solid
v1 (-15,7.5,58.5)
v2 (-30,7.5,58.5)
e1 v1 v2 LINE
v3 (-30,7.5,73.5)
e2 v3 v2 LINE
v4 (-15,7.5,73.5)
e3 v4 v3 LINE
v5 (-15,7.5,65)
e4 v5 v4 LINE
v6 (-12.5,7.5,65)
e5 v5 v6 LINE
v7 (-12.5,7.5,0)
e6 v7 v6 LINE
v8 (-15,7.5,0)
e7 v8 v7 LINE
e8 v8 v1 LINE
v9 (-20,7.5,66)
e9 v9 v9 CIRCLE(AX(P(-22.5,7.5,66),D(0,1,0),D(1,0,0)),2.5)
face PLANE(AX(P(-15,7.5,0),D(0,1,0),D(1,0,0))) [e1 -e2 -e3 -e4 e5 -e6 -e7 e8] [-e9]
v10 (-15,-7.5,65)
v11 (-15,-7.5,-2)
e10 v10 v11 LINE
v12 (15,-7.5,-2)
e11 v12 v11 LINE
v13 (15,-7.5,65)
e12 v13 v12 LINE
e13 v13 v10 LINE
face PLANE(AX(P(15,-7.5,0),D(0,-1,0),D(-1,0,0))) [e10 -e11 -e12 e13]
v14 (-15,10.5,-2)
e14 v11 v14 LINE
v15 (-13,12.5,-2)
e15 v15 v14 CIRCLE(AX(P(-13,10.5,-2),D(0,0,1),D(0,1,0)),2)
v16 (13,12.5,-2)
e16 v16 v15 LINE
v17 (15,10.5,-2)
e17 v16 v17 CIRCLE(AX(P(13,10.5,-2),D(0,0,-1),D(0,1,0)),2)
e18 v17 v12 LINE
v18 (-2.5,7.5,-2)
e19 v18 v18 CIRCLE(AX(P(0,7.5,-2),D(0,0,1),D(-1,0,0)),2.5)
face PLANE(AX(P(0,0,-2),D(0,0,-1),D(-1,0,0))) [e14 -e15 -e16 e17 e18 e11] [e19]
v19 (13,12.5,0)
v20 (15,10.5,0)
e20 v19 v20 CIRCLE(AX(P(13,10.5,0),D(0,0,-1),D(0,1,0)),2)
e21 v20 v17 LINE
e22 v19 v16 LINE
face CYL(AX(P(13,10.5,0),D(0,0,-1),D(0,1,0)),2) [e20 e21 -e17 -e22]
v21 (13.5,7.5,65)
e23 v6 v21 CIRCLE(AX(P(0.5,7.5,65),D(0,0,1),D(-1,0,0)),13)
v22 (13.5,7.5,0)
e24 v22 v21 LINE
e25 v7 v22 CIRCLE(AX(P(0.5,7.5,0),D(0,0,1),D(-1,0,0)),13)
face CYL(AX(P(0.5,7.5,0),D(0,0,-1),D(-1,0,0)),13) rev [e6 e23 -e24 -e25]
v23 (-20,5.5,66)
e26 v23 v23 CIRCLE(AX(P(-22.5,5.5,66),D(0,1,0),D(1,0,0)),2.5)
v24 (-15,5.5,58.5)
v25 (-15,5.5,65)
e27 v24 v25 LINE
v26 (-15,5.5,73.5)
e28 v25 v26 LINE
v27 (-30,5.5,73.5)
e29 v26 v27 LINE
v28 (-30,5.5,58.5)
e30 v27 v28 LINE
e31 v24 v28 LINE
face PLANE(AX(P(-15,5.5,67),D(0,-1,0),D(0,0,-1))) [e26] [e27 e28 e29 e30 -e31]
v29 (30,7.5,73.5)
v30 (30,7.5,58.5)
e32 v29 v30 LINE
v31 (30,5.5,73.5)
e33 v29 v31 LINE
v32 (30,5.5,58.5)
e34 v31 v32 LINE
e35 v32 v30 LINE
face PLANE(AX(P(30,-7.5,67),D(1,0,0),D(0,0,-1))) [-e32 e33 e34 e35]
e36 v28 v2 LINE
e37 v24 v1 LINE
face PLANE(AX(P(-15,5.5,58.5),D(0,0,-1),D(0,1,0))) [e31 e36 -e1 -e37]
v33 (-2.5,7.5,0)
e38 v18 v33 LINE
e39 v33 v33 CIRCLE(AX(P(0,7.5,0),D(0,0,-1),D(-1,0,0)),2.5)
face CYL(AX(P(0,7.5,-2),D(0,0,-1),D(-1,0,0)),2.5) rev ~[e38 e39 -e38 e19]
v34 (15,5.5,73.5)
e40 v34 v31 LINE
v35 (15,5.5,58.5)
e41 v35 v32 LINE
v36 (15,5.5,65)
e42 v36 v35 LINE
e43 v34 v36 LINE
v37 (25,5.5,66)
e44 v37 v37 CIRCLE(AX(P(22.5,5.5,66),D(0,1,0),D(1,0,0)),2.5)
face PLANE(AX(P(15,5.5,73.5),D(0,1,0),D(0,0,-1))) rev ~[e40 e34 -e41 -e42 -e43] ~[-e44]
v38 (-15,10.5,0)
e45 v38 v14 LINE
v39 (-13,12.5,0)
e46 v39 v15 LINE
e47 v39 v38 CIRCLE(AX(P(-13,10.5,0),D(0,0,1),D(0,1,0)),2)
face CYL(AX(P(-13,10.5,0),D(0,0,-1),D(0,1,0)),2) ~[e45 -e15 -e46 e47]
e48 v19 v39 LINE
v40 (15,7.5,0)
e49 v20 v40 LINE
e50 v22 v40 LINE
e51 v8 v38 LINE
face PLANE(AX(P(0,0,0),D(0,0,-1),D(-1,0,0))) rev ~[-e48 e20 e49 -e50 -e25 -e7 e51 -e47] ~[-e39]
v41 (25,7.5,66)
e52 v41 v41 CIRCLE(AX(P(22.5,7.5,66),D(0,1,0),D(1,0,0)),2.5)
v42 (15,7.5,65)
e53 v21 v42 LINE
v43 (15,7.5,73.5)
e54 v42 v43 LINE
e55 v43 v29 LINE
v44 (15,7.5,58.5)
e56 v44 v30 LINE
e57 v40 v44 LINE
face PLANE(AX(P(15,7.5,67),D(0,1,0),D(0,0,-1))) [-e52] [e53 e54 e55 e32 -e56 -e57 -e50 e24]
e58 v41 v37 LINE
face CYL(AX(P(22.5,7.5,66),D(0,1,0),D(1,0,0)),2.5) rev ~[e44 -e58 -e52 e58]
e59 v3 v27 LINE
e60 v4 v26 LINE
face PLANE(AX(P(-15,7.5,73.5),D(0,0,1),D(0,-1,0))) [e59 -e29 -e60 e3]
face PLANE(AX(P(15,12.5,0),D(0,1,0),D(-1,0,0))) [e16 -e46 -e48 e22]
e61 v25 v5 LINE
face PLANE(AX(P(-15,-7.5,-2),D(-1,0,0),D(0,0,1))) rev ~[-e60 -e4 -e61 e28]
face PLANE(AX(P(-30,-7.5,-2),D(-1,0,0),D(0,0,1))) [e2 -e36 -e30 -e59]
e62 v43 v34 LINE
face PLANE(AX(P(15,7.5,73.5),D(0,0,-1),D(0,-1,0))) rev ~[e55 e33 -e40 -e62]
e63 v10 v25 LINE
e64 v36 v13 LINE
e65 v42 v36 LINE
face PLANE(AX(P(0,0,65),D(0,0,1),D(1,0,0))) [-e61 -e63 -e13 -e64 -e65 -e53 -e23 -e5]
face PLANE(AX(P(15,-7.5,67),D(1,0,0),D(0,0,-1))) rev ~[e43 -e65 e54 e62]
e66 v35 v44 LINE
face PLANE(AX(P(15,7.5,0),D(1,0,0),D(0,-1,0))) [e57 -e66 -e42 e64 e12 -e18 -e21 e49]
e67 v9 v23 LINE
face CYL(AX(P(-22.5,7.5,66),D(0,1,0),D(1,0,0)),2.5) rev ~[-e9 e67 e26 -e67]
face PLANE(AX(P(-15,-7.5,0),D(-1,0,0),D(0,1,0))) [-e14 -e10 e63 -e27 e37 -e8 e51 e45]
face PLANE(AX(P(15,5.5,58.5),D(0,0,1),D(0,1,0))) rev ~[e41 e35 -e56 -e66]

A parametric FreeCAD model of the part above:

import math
import FreeCAD as App
import Part
import Sketcher

V = App.Vector
Q = App.Units.Quantity


def edges_at(feature, points):
    """Names of the edges that pass closest to the given points."""
    edges = feature.Shape.Edges
    near = lambda p: min(range(len(edges)), key=lambda i: edges[i].distToShape(Part.Vertex(*p))[0])
    return sorted({f"Edge{near(p) + 1}" for p in points})


def add_polygon(sketch, points):
    """Adds a closed chain of lines whose ends are joined by coincident constraints."""
    first, n = sketch.GeometryCount, len(points)
    for a, b in zip(points, points[1:] + points[:1]):
        sketch.addGeometry(Part.LineSegment(App.Vector(*a, 0), App.Vector(*b, 0)), False)
    for i in range(n):
        sketch.addConstraint(Sketcher.Constraint("Coincident", first + i, 2, first + (i + 1) % n, 1))

doc = App.newDocument("Part")
body = doc.addObject("PartDesign::Body", "Body")

sketch1 = doc.addObject("Sketcher::SketchObject", "Sketch")
body.addObject(sketch1)
sketch1.AttachmentSupport = (doc.XY_Plane, [""])
sketch1.MapMode = "FlatFace"
sketch1.addGeometry([
    Part.LineSegment(V(15, -7.5, 0), V(15, 7.5, 0)),
    Part.LineSegment(V(15, 7.5, 0), V(13.5, 7.5, 0)),
    Part.ArcOfCircle(Part.Circle(V(0.5, 7.5, 0), V(0, 0, 1), 13), math.radians(180), math.radians(360)),
    Part.LineSegment(V(-12.5, 7.5, 0), V(-15, 7.5, 0)),
    Part.LineSegment(V(-15, 7.5, 0), V(-15, -7.5, 0)),
    Part.LineSegment(V(-15, -7.5, 0), V(15, -7.5, 0)),
], False)
sketch1.addConstraint([
    Sketcher.Constraint("Coincident", 0, 2, 1, 1),
    Sketcher.Constraint("Coincident", 1, 2, 2, 2),
    Sketcher.Constraint("Coincident", 2, 1, 3, 1),
    Sketcher.Constraint("Coincident", 3, 2, 4, 1),
    Sketcher.Constraint("Coincident", 4, 2, 5, 1),
    Sketcher.Constraint("Coincident", 5, 2, 0, 1),
    Sketcher.Constraint("Vertical", 0),
    Sketcher.Constraint("Horizontal", 1),
    Sketcher.Constraint("Horizontal", 3),
    Sketcher.Constraint("Vertical", 4),
    Sketcher.Constraint("Horizontal", 5),
    Sketcher.Constraint("Symmetric", 0, 2, 4, 2, -1, 1),
    Sketcher.Constraint("Horizontal", 2, 3, 0, 2),
    Sketcher.Constraint("Horizontal", 1, 2, 2, 1),
    Sketcher.Constraint("Radius", 2, Q("13 mm")),
    Sketcher.Constraint("DistanceX", 5, 1, 5, 2, Q("30 mm")),
    Sketcher.Constraint("DistanceY", 0, 1, 0, 2, Q("15 mm")),
    Sketcher.Constraint("DistanceX", 1, 2, 1, 1, Q("1.5 mm")),
])
pad1 = doc.addObject("PartDesign::Pad", "Pad")
body.addObject(pad1)
pad1.Profile = sketch1
pad1.Length = 65

sketch2 = doc.addObject("Sketcher::SketchObject", "Sketch001")
body.addObject(sketch2)
sketch2.AttachmentSupport = (doc.XY_Plane, [""])
sketch2.MapMode = "FlatFace"
add_polygon(sketch2, [(-15, 12.5), (15, 12.5), (15, -7.5), (-15, -7.5)])
sketch2.addConstraint([
    Sketcher.Constraint("Horizontal", 0),
    Sketcher.Constraint("Vertical", 1),
    Sketcher.Constraint("Horizontal", 2),
    Sketcher.Constraint("Vertical", 3),
    Sketcher.Constraint("DistanceX", 0, 1, 0, 2, Q("30 mm")),
    Sketcher.Constraint("DistanceY", 1, 2, 1, 1, Q("20 mm")),
    Sketcher.Constraint("DistanceX", -1, 1, 0, 2, Q("15 mm")),
    Sketcher.Constraint("DistanceY", -1, 1, 0, 2, Q("12.5 mm")),
])
pad2 = doc.addObject("PartDesign::Pad", "Pad001")
body.addObject(pad2)
pad2.Profile = sketch2
pad2.Length = 2
pad2.Reversed = True

sketch3 = doc.addObject("Sketcher::SketchObject", "Sketch002")
body.addObject(sketch3)
sketch3.AttachmentSupport = (doc.XY_Plane, [""])
sketch3.MapMode = "FlatFace"
sketch3.AttachmentOffset = App.Placement(V(0, 0, -2), App.Rotation())
sketch3.addGeometry(Part.Circle(V(0, 7.5, 0), V(0, 0, 1), 2.5), False)
sketch3.addConstraint([
    Sketcher.Constraint("PointOnObject", 0, 3, -2),
    Sketcher.Constraint("Diameter", 0, Q("5 mm")),
    Sketcher.Constraint("DistanceY", -1, 1, 0, 3, Q("7.5 mm")),
])
pocket1 = doc.addObject("PartDesign::Pocket", "Pocket")
body.addObject(pocket1)
pocket1.Profile = sketch3
pocket1.Length = 2
pocket1.Reversed = True
doc.recompute()

fillet = doc.addObject("PartDesign::Fillet", "Fillet")
body.addObject(fillet)
fillet.Base = (pocket1, edges_at(pocket1, [(-15, 12.5, -1)]))
fillet.Radius = 2
doc.recompute()

fillet2 = doc.addObject("PartDesign::Fillet", "Fillet001")
body.addObject(fillet2)
fillet2.Base = (fillet, edges_at(fillet, [(15, 12.5, -1)]))
fillet2.Radius = 2

sketch4 = doc.addObject("Sketcher::SketchObject", "Sketch003")
body.addObject(sketch4)
sketch4.AttachmentSupport = (doc.YZ_Plane, [""])
sketch4.MapMode = "FlatFace"
sketch4.AttachmentOffset = App.Placement(V(0, 0, -15), App.Rotation())
add_polygon(sketch4, [(5.5, 58.5), (5.5, 73.5), (7.5, 73.5), (7.5, 58.5)])
sketch4.addConstraint([
    Sketcher.Constraint("Vertical", 0),
    Sketcher.Constraint("Horizontal", 1),
    Sketcher.Constraint("Vertical", 2),
    Sketcher.Constraint("Horizontal", 3),
    Sketcher.Constraint("DistanceX", 1, 1, 1, 2, Q("2 mm")),
    Sketcher.Constraint("DistanceY", 0, 1, 0, 2, Q("15 mm")),
    Sketcher.Constraint("DistanceX", -1, 1, 0, 2, Q("5.5 mm")),
    Sketcher.Constraint("DistanceY", -1, 1, 0, 2, Q("73.5 mm")),
])
pad3 = doc.addObject("PartDesign::Pad", "Pad002")
body.addObject(pad3)
pad3.Profile = sketch4
pad3.Length = 15
pad3.Reversed = True

sketch5 = doc.addObject("Sketcher::SketchObject", "Sketch004")
body.addObject(sketch5)
sketch5.AttachmentSupport = (doc.XZ_Plane, [""])
sketch5.MapMode = "FlatFace"
sketch5.AttachmentOffset = App.Placement(V(0, 0, -7.5), App.Rotation())
sketch5.addGeometry(Part.Circle(V(-22.5, 66, 0), V(0, 0, 1), 2.5), False)
sketch5.addConstraint([
    Sketcher.Constraint("Diameter", 0, Q("5 mm")),
    Sketcher.Constraint("DistanceY", -1, 1, 0, 3, Q("66 mm")),
    Sketcher.Constraint("DistanceX", 0, 3, -1, 1, Q("22.5 mm")),
])
pocket2 = doc.addObject("PartDesign::Pocket", "Pocket001")
body.addObject(pocket2)
pocket2.Profile = sketch5
pocket2.Type = "ThroughAll"
pocket2.Reversed = True

sketch6 = doc.addObject("Sketcher::SketchObject", "Sketch005")
body.addObject(sketch6)
sketch6.AttachmentSupport = (doc.YZ_Plane, [""])
sketch6.MapMode = "FlatFace"
sketch6.AttachmentOffset = App.Placement(V(0, 0, 15), App.Rotation())
add_polygon(sketch6, [(7.5, 58.5), (7.5, 73.5), (5.5, 73.5), (5.5, 58.5)])
sketch6.addConstraint([
    Sketcher.Constraint("Vertical", 0),
    Sketcher.Constraint("Horizontal", 1),
    Sketcher.Constraint("Vertical", 2),
    Sketcher.Constraint("Horizontal", 3),
    Sketcher.Constraint("DistanceX", 1, 2, 1, 1, Q("2 mm")),
    Sketcher.Constraint("DistanceY", 0, 1, 0, 2, Q("15 mm")),
    Sketcher.Constraint("DistanceX", -1, 1, 0, 2, Q("7.5 mm")),
    Sketcher.Constraint("DistanceY", -1, 1, 0, 2, Q("73.5 mm")),
])
pad4 = doc.addObject("PartDesign::Pad", "Pad003")
body.addObject(pad4)
pad4.Profile = sketch6
pad4.Length = 15

sketch7 = doc.addObject("Sketcher::SketchObject", "Sketch006")
body.addObject(sketch7)
sketch7.AttachmentSupport = (doc.XZ_Plane, [""])
sketch7.MapMode = "FlatFace"
sketch7.AttachmentOffset = App.Placement(V(0, 0, -7.5), App.Rotation())
sketch7.addGeometry(Part.Circle(V(22.5, 66, 0), V(0, 0, 1), 2.5), False)
sketch7.addConstraint([
    Sketcher.Constraint("Diameter", 0, Q("5 mm")),
    Sketcher.Constraint("DistanceY", -1, 1, 0, 3, Q("66 mm")),
    Sketcher.Constraint("DistanceX", -1, 1, 0, 3, Q("22.5 mm")),
])
pocket3 = doc.addObject("PartDesign::Pocket", "Pocket002")
body.addObject(pocket3)
pocket3.Profile = sketch7
pocket3.Type = "ThroughAll"
pocket3.Reversed = True

doc.recompute()
